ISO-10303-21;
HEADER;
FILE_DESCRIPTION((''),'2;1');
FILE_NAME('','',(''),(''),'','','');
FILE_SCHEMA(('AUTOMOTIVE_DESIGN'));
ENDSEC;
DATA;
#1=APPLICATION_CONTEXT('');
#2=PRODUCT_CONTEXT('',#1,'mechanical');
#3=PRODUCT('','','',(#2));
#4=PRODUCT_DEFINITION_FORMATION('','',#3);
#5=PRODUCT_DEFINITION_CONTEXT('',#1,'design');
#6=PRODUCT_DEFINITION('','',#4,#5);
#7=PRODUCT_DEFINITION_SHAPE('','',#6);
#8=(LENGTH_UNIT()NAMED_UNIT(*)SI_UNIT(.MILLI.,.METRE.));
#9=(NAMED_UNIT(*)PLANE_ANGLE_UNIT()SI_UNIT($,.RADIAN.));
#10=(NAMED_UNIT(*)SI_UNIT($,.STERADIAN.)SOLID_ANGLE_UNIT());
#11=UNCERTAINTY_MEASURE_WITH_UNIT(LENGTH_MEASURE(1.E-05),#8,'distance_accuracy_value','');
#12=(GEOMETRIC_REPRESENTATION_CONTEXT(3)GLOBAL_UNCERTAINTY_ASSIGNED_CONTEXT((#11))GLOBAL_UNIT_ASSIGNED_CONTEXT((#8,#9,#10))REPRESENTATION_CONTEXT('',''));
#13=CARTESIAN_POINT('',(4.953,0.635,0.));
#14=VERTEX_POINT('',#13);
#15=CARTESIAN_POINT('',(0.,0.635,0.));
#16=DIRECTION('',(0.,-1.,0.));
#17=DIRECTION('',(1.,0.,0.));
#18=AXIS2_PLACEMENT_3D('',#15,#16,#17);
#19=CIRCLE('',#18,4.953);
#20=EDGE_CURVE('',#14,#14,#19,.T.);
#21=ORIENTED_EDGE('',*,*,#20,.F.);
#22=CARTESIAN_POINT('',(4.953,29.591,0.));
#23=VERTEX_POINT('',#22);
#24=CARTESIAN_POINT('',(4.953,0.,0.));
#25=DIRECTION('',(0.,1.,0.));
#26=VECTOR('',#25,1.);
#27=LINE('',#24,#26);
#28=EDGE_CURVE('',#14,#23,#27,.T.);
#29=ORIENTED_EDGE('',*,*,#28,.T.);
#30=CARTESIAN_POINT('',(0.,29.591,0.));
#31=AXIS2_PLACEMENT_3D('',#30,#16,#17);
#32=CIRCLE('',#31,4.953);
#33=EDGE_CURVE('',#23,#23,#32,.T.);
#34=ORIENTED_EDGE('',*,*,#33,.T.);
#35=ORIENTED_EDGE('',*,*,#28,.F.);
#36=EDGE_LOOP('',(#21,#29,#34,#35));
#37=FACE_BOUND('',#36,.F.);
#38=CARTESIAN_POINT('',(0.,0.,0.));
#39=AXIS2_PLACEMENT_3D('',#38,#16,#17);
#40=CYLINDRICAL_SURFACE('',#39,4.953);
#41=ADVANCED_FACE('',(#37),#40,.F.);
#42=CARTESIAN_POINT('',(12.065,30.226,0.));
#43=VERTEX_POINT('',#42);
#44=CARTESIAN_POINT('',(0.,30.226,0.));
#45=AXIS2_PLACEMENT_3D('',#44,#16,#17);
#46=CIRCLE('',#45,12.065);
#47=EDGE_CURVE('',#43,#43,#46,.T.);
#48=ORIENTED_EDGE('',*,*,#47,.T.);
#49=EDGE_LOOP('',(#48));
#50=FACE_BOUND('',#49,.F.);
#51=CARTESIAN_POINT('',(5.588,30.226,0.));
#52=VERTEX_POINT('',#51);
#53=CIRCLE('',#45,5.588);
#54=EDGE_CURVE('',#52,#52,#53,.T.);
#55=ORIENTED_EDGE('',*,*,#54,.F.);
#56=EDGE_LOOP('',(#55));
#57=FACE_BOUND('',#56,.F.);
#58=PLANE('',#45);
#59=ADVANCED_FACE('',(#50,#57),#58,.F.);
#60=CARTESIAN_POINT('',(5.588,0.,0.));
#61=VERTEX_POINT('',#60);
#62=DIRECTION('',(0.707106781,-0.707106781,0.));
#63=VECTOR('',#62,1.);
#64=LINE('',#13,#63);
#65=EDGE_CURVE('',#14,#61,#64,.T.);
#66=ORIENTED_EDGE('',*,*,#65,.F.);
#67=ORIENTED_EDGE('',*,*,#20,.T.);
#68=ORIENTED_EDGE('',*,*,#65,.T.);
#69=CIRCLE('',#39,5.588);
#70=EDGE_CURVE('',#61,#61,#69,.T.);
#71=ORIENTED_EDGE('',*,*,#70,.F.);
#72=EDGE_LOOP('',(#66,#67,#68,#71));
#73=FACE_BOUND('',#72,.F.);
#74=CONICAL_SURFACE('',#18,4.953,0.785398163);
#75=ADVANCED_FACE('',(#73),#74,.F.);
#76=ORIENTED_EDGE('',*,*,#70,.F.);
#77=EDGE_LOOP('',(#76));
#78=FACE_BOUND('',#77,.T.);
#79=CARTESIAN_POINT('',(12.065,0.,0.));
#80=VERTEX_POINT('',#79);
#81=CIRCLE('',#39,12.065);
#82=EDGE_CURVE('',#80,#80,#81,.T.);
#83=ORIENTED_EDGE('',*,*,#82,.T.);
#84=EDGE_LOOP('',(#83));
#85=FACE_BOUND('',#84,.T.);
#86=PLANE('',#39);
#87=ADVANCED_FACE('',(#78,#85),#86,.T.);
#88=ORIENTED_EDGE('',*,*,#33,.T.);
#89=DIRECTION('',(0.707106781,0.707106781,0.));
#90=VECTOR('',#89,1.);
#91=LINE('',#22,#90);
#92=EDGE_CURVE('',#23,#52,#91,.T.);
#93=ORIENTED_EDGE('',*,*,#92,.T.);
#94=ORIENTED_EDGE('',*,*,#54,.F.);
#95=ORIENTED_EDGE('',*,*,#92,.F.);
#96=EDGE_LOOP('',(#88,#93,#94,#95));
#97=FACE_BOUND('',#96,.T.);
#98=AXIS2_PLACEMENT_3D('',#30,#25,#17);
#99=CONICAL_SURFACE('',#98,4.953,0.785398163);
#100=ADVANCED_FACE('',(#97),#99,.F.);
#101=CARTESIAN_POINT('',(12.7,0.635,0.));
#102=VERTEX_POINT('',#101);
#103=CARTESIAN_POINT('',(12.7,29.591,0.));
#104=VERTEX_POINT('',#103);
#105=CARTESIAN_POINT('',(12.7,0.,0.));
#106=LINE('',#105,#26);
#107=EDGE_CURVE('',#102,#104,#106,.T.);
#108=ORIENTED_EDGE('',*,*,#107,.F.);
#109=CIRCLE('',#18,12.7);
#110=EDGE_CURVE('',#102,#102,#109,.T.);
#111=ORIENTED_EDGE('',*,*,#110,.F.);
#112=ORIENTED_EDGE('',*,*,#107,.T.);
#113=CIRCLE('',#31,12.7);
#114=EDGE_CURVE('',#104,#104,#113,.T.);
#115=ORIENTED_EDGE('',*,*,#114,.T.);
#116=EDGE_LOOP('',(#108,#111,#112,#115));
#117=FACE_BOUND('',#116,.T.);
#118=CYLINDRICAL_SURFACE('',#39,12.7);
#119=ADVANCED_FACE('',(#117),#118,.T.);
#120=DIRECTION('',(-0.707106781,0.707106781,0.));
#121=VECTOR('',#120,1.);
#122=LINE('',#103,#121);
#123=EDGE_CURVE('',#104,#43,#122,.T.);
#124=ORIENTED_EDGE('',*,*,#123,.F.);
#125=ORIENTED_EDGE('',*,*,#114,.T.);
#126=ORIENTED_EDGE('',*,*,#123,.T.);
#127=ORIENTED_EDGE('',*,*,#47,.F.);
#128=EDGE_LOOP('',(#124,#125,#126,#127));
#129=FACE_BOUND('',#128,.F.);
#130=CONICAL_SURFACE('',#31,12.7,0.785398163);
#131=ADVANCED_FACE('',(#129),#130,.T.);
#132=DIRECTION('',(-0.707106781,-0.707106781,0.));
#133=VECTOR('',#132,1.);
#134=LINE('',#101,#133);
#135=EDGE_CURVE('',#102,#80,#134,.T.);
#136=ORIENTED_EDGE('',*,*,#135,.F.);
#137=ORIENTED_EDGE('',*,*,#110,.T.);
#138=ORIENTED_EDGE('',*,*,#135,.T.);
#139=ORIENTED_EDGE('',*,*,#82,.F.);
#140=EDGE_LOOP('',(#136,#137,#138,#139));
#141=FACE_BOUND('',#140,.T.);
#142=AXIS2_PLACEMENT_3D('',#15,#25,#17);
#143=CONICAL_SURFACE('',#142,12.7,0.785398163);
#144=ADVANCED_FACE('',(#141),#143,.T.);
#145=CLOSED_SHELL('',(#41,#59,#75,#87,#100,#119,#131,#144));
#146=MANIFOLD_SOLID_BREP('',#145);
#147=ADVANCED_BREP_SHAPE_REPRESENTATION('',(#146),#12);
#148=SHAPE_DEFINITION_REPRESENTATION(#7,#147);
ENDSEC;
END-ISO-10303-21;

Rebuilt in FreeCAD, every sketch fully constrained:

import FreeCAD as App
import Part
import Sketcher
Q = App.Units.Quantity


def edges_at(feature, points):
    """Names of the edges that pass closest to the given points."""
    edges = feature.Shape.Edges
    near = lambda p: min(range(len(edges)), key=lambda i: edges[i].distToShape(Part.Vertex(*p))[0])
    return sorted({f"Edge{near(p) + 1}" for p in points})

doc = App.newDocument("Part")
params = doc.addObject("Spreadsheet::Sheet", "Params")
for row, (alias, value) in enumerate([
    ("sketch1_diameter", "1 in"),
    ("sketch1_diameter2", "0.39 in"),
    ("pad1_length", "1.19 in"),
    ("chamfer_size", "0.025 in"),
], start=1):
    params.set(f"A{row}", alias)
    params.set(f"B{row}", "=" + value)
    params.setAlias(f"B{row}", alias)

body = doc.addObject("PartDesign::Body", "Body")

# Sketch on XZ plane
sketch1 = body.newObject("Sketcher::SketchObject", "Sketch")
sketch1.AttachmentSupport = (doc.getObject("XZ_Plane"), [""])
sketch1.MapMode = "FlatFace"
sketch1.addGeometry([
    Part.Circle(App.Vector(0, 0, 0), App.Vector(0, 0, 1), 12.7),
    Part.Circle(App.Vector(0, 0, 0), App.Vector(0, 0, 1), 5),
], False)
sketch1.addConstraint([
    Sketcher.Constraint("Coincident", 0, 3, -1, 1),
    Sketcher.Constraint("Coincident", 1, 3, -1, 1),
    Sketcher.Constraint("Diameter", 0, Q("1 in")),
    Sketcher.Constraint("Diameter", 1, Q("0.39 in")),
])
sketch1.setExpression("Constraints[2]", "Params.sketch1_diameter")
sketch1.setExpression("Constraints[3]", "Params.sketch1_diameter2")
pad1 = body.newObject("PartDesign::Pad", "Pad")
pad1.Profile = sketch1
pad1.setExpression("Length", "Params.pad1_length")
pad1.Reversed = True
doc.recompute()

chamfer = body.newObject("PartDesign::Chamfer", "Chamfer")
chamfer.Base = (pad1, edges_at(pad1, [
    (-12.7, 0, 0),
    (-4.953, 0, 0),
    (-12.7, 30.226, 0),
    (-4.953, 30.226, 0),
]))
chamfer.setExpression("Size", "Params.chamfer_size")

doc.recompute()
